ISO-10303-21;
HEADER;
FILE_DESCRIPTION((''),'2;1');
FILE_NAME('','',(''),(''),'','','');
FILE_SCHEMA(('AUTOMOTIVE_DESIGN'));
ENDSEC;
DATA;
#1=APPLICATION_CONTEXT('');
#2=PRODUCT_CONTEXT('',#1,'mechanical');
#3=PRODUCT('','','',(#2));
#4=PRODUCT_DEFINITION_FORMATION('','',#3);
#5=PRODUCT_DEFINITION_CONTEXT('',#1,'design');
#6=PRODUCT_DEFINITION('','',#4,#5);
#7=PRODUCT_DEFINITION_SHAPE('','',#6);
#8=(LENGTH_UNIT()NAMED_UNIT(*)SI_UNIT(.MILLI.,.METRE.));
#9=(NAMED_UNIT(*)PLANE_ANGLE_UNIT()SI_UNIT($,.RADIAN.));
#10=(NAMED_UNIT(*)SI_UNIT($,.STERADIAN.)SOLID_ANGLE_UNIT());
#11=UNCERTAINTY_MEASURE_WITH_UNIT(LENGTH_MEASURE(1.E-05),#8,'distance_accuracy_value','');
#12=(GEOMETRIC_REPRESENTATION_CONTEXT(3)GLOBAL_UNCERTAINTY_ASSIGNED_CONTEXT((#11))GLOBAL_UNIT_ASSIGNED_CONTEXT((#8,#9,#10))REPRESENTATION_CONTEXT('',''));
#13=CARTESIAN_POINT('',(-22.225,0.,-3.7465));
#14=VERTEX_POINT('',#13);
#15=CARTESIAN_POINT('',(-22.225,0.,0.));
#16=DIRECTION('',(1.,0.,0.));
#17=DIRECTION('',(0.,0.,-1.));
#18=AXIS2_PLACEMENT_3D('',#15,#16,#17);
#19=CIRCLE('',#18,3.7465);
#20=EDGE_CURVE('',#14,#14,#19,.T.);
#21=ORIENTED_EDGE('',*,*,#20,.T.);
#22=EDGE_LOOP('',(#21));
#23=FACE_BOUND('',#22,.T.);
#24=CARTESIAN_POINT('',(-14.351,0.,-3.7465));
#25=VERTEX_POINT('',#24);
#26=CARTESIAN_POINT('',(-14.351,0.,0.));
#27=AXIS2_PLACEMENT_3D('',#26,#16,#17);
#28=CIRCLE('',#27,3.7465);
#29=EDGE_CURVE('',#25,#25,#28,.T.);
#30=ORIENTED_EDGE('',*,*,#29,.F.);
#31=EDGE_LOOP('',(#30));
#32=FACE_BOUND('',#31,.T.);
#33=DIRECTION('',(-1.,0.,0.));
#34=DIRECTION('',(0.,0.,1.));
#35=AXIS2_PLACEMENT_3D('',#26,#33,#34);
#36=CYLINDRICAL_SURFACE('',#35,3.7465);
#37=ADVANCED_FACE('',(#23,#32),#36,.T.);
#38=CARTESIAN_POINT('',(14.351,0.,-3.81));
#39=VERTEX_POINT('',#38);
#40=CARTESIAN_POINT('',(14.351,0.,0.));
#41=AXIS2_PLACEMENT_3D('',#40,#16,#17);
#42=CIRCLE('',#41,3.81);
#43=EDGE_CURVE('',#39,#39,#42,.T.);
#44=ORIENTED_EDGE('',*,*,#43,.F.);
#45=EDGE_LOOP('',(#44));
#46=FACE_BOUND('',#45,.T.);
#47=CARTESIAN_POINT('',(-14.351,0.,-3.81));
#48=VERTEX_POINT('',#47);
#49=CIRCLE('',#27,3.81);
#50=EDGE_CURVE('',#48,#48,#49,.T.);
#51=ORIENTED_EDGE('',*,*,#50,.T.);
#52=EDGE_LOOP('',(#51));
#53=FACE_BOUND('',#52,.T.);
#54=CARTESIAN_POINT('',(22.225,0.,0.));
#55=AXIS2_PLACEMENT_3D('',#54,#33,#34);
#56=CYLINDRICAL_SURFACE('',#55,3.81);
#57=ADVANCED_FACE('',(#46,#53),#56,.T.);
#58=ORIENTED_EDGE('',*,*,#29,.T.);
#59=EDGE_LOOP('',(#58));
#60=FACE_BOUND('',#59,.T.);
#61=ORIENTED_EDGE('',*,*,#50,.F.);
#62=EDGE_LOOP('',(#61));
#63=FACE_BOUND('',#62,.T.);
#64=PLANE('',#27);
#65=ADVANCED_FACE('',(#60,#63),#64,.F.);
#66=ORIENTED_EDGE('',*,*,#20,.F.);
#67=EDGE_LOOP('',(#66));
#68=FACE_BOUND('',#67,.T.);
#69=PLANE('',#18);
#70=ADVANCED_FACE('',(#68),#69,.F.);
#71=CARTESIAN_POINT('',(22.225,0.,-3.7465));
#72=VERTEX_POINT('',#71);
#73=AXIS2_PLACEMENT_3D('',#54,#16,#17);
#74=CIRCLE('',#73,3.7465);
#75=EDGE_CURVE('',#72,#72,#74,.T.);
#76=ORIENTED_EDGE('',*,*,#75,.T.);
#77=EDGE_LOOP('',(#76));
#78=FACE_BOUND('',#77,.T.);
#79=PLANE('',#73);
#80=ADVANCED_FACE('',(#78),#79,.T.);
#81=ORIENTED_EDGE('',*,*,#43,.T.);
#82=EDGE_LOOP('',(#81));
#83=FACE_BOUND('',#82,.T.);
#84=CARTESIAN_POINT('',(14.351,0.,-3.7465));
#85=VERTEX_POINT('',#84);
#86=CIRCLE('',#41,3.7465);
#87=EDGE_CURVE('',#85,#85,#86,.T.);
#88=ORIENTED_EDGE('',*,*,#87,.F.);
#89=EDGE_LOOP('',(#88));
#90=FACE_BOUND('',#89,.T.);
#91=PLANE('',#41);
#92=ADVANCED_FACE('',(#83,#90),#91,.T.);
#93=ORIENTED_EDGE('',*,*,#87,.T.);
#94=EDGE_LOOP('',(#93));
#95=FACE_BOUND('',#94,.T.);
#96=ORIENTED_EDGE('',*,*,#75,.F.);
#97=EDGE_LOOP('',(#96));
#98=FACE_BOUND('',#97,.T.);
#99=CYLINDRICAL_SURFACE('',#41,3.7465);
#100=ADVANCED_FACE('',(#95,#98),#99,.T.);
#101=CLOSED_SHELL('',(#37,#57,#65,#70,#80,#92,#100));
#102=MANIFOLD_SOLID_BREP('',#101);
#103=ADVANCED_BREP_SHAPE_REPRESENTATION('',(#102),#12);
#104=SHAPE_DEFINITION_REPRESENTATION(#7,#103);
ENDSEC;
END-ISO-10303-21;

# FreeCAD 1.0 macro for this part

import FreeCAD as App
import Part
import Sketcher

V = App.Vector
Q = App.Units.Quantity

doc = App.newDocument("Part")
body = doc.addObject("PartDesign::Body", "Body")

# Sketch on YZ plane
sketch1 = doc.addObject("Sketcher::SketchObject", "Sketch")
body.addObject(sketch1)
sketch1.AttachmentSupport = (doc.YZ_Plane, [""])
sketch1.MapMode = "FlatFace"
sketch1.addGeometry(Part.Circle(V(0, 0, 0), V(0, 0, 1), 3.8), False)
sketch1.addConstraint(Sketcher.Constraint("Coincident", 0, 3, -1, 1))
sketch1.addConstraint(Sketcher.Constraint("Diameter", 0, Q("0.3 in")))
pad1 = doc.addObject("PartDesign::Pad", "Pad")
body.addObject(pad1)
pad1.Profile = sketch1
pad1.Length = Q("1.75 in")
pad1.Midplane = True

# Sketch on YZ plane
sketch2 = doc.addObject("Sketcher::SketchObject", "Sketch001")
body.addObject(sketch2)
sketch2.AttachmentSupport = (doc.YZ_Plane, [""])
sketch2.MapMode = "FlatFace"
sketch2.AttachmentOffset = App.Placement(V(0, 0, 0.875 * 25.4), App.Rotation())
sketch2.addGeometry(Part.Circle(V(0, 0, 0), V(0, 0, 1), 6.3), False)
sketch2.addGeometry(Part.Circle(V(0, 0, 0), V(0, 0, 1), 3.7), False)
sketch2.addConstraint(Sketcher.Constraint("Coincident", 0, 3, -1, 1))
sketch2.addConstraint(Sketcher.Constraint("Coincident", 1, 3, -1, 1))
sketch2.addConstraint(Sketcher.Constraint("Diameter", 0, Q("0.495 in")))
sketch2.addConstraint(Sketcher.Constraint("Diameter", 1, Q("0.295 in")))
pocket1 = doc.addObject("PartDesign::Pocket", "Pocket")
body.addObject(pocket1)
pocket1.Profile = sketch2
pocket1.Length = Q("0.31 in")
doc.recompute()

mirrored = doc.addObject("PartDesign::Mirrored", "Mirrored")
body.addObject(mirrored)
mirrored.Originals = [pocket1]
mirrored.MirrorPlane = (doc.YZ_Plane, [""])
body.Tip = mirrored

doc.recompute()
